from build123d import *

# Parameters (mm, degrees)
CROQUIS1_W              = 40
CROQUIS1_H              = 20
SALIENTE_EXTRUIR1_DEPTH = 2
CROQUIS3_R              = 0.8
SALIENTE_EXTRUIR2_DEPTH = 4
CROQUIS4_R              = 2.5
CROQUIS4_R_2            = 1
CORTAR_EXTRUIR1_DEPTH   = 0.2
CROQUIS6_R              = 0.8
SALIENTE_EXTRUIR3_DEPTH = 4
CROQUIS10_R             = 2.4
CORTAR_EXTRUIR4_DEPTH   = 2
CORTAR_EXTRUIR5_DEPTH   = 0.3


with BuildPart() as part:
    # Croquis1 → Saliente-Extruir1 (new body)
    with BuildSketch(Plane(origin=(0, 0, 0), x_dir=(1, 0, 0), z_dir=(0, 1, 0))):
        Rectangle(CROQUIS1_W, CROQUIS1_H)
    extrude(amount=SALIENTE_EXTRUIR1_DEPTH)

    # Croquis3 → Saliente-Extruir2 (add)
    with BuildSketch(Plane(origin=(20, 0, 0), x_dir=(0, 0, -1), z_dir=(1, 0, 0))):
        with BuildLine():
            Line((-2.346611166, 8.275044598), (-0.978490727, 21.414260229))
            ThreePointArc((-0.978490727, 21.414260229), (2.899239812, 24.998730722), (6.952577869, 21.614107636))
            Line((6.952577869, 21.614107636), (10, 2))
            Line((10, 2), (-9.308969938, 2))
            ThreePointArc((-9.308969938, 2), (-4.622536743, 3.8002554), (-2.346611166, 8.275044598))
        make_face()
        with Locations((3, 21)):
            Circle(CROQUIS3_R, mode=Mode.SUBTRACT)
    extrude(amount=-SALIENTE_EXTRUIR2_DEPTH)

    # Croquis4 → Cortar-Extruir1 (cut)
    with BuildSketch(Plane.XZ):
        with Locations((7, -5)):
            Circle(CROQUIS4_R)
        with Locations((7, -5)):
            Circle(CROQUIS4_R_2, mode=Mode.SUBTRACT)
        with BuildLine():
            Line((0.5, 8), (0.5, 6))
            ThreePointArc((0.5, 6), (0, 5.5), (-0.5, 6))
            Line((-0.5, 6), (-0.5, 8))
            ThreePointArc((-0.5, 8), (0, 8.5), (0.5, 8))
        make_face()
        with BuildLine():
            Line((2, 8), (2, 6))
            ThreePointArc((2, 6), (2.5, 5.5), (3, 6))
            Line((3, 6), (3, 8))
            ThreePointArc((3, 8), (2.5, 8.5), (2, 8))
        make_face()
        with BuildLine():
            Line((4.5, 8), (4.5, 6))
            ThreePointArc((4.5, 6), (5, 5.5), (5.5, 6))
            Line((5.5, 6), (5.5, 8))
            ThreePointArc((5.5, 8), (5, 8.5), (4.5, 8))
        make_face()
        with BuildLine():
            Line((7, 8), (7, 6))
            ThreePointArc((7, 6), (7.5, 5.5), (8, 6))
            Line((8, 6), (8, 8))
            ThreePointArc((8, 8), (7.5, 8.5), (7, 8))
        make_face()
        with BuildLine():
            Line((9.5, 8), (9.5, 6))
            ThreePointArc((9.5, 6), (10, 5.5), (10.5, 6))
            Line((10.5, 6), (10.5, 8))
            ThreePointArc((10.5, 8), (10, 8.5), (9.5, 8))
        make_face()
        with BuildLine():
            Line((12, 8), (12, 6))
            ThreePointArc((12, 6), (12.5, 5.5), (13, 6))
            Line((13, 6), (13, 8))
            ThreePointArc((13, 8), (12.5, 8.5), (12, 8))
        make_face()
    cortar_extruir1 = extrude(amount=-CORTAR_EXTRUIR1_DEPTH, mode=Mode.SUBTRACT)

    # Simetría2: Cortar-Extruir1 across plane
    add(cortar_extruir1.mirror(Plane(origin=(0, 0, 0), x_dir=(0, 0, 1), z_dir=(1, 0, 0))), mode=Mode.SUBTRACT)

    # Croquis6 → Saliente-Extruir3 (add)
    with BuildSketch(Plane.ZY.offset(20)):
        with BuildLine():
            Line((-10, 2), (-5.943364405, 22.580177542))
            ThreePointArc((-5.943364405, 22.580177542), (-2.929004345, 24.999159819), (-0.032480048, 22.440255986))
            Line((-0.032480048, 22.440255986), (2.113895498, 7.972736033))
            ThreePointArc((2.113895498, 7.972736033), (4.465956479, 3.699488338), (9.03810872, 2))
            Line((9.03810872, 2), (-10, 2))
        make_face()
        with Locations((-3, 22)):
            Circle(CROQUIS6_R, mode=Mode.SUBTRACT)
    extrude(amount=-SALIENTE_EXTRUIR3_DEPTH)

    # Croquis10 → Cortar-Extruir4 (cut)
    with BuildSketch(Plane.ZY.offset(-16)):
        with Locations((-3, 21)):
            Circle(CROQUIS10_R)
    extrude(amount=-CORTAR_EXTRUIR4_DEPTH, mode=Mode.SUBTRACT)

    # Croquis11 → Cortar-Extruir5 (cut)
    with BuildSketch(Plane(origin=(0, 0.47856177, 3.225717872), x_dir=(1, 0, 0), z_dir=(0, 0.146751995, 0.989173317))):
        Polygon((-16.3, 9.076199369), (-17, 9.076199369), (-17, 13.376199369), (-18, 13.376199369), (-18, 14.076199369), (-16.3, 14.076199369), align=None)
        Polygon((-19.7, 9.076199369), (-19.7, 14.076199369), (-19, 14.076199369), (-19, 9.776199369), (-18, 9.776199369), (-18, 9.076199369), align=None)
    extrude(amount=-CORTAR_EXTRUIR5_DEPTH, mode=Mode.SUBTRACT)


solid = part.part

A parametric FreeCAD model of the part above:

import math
import FreeCAD as App
import Part
import Sketcher
Q = App.Units.Quantity


def add_polygon(sketch, points):
    """Adds a closed chain of lines whose ends are joined by coincident constraints."""
    first, n = sketch.GeometryCount, len(points)
    for a, b in zip(points, points[1:] + points[:1]):
        sketch.addGeometry(Part.LineSegment(App.Vector(*a, 0), App.Vector(*b, 0)), False)
    for i in range(n):
        sketch.addConstraint(Sketcher.Constraint("Coincident", first + i, 2, first + (i + 1) % n, 1))

doc = App.newDocument("Part")
body = doc.addObject("PartDesign::Body", "Body")

sketch1 = body.newObject("Sketcher::SketchObject", "Sketch")
sketch1.AttachmentSupport = (doc.getObject("XZ_Plane"), [""])
sketch1.MapMode = "FlatFace"
add_polygon(sketch1, [(-20, -10), (-20, 10), (20, 10), (20, -10)])
sketch1.addConstraint(Sketcher.Constraint("Vertical", 0))
sketch1.addConstraint(Sketcher.Constraint("Horizontal", 1))
sketch1.addConstraint(Sketcher.Constraint("Vertical", 2))
sketch1.addConstraint(Sketcher.Constraint("Horizontal", 3))
sketch1.addConstraint(Sketcher.Constraint("Symmetric", 0, 2, 2, 2, -1, 1))
sketch1.addConstraint(Sketcher.Constraint("DistanceX", 1, 1, 1, 2, Q("40 mm")))
sketch1.addConstraint(Sketcher.Constraint("DistanceY", 0, 1, 0, 2, Q("20 mm")))
pad1 = body.newObject("PartDesign::Pad", "Pad")
pad1.Profile = sketch1
pad1.Length = 2
pad1.Reversed = True

sketch2 = body.newObject("Sketcher::SketchObject", "Sketch001")
sketch2.AttachmentSupport = (doc.getObject("YZ_Plane"), [""])
sketch2.MapMode = "FlatFace"
sketch2.AttachmentOffset = App.Placement(App.Vector(0, 0, 20), App.Rotation())
sketch2.addGeometry(Part.LineSegment(App.Vector(21.41426, 0.978491, 0), App.Vector(8.275045, 2.346611, 0)), False)
sketch2.addGeometry(Part.ArcOfCircle(Part.Circle(App.Vector(9, 9.30897, 0), App.Vector(0, 0, 1), 7), math.radians(-180), math.radians(-95.9445)), False)
sketch2.addGeometry(Part.LineSegment(App.Vector(2, 9.30897, 0), App.Vector(2, -10, 0)), False)
sketch2.addGeometry(Part.LineSegment(App.Vector(2, -10, 0), App.Vector(21.614108, -6.952578, 0)), False)
sketch2.addGeometry(Part.ArcOfCircle(Part.Circle(App.Vector(21, -3, 0), App.Vector(0, 0, 1), 4), math.radians(-81.168628), math.radians(84.0555)), False)
sketch2.addGeometry(Part.Circle(App.Vector(21, -3, 0), App.Vector(0, 0, 1), 0.8), False)
sketch2.addConstraint(Sketcher.Constraint("Tangent", 0, 2, 1, 2))
sketch2.addConstraint(Sketcher.Constraint("Tangent", 1, 1, 2, 1))
sketch2.addConstraint(Sketcher.Constraint("Coincident", 2, 2, 3, 1))
sketch2.addConstraint(Sketcher.Constraint("Tangent", 3, 2, 4, 1))
sketch2.addConstraint(Sketcher.Constraint("Tangent", 4, 2, 0, 1))
sketch2.addConstraint(Sketcher.Constraint("Vertical", 2))
sketch2.addConstraint(Sketcher.Constraint("Coincident", 5, 3, 4, 3))
sketch2.addConstraint(Sketcher.Constraint("Radius", 1, Q("7 mm")))
sketch2.addConstraint(Sketcher.Constraint("Radius", 4, Q("4 mm")))
sketch2.addConstraint(Sketcher.Constraint("Diameter", 5, Q("1.6 mm")))
sketch2.addConstraint(Sketcher.Constraint("DistanceX", -1, 1, 1, 3, Q("9 mm")))
sketch2.addConstraint(Sketcher.Constraint("DistanceX", -1, 1, 4, 3, Q("21 mm")))
sketch2.addConstraint(Sketcher.Constraint("DistanceY", 4, 3, -1, 1, Q("3 mm")))
sketch2.addConstraint(Sketcher.Constraint("DistanceY", 2, 2, -1, 1, Q("10 mm")))
sketch2.addConstraint(Sketcher.Constraint("DistanceY", 2, 2, 2, 1, Q("19.30897 mm")))
pad2 = body.newObject("PartDesign::Pad", "Pad001")
pad2.Profile = sketch2
pad2.Length = 4
pad2.Reversed = True

sketch3 = body.newObject("Sketcher::SketchObject", "Sketch002")
sketch3.AttachmentSupport = (doc.getObject("XZ_Plane"), [""])
sketch3.MapMode = "FlatFace"
sketch3.addGeometry(Part.Circle(App.Vector(7, -5, 0), App.Vector(0, 0, 1), 2.5), False)
sketch3.addGeometry(Part.Circle(App.Vector(7, -5, 0), App.Vector(0, 0, 1), 1), False)
sketch3.addGeometry(Part.LineSegment(App.Vector(0.5, 6, 0), App.Vector(0.5, 8, 0)), False)
sketch3.addGeometry(Part.ArcOfCircle(Part.Circle(App.Vector(0, 8, 0), App.Vector(0, 0, 1), 0.5), math.radians(0), math.radians(180)), False)
sketch3.addGeometry(Part.LineSegment(App.Vector(-0.5, 8, 0), App.Vector(-0.5, 6, 0)), False)
sketch3.addGeometry(Part.ArcOfCircle(Part.Circle(App.Vector(0, 6, 0), App.Vector(0, 0, 1), 0.5), math.radians(180), math.radians(360)), False)
sketch3.addGeometry(Part.LineSegment(App.Vector(2, 8, 0), App.Vector(2, 6, 0)), False)
sketch3.addGeometry(Part.ArcOfCircle(Part.Circle(App.Vector(2.5, 6, 0), App.Vector(0, 0, 1), 0.5), math.radians(180), math.radians(360)), False)
sketch3.addGeometry(Part.LineSegment(App.Vector(3, 6, 0), App.Vector(3, 8, 0)), False)
sketch3.addGeometry(Part.ArcOfCircle(Part.Circle(App.Vector(2.5, 8, 0), App.Vector(0, 0, 1), 0.5), math.radians(0), math.radians(180)), False)
sketch3.addGeometry(Part.LineSegment(App.Vector(4.5, 8, 0), App.Vector(4.5, 6, 0)), False)
sketch3.addGeometry(Part.ArcOfCircle(Part.Circle(App.Vector(5, 6, 0), App.Vector(0, 0, 1), 0.5), math.radians(180), math.radians(360)), False)
sketch3.addGeometry(Part.LineSegment(App.Vector(5.5, 6, 0), App.Vector(5.5, 8, 0)), False)
sketch3.addGeometry(Part.ArcOfCircle(Part.Circle(App.Vector(5, 8, 0), App.Vector(0, 0, 1), 0.5), math.radians(0), math.radians(180)), False)
sketch3.addGeometry(Part.LineSegment(App.Vector(7, 8, 0), App.Vector(7, 6, 0)), False)
sketch3.addGeometry(Part.ArcOfCircle(Part.Circle(App.Vector(7.5, 6, 0), App.Vector(0, 0, 1), 0.5), math.radians(180), math.radians(360)), False)
sketch3.addGeometry(Part.LineSegment(App.Vector(8, 6, 0), App.Vector(8, 8, 0)), False)
sketch3.addGeometry(Part.ArcOfCircle(Part.Circle(App.Vector(7.5, 8, 0), App.Vector(0, 0, 1), 0.5), math.radians(0), math.radians(180)), False)
sketch3.addGeometry(Part.LineSegment(App.Vector(9.5, 8, 0), App.Vector(9.5, 6, 0)), False)
sketch3.addGeometry(Part.ArcOfCircle(Part.Circle(App.Vector(10, 6, 0), App.Vector(0, 0, 1), 0.5), math.radians(180), math.radians(360)), False)
sketch3.addGeometry(Part.LineSegment(App.Vector(10.5, 6, 0), App.Vector(10.5, 8, 0)), False)
sketch3.addGeometry(Part.ArcOfCircle(Part.Circle(App.Vector(10, 8, 0), App.Vector(0, 0, 1), 0.5), math.radians(0), math.radians(180)), False)
sketch3.addGeometry(Part.LineSegment(App.Vector(12, 8, 0), App.Vector(12, 6, 0)), False)
sketch3.addGeometry(Part.ArcOfCircle(Part.Circle(App.Vector(12.5, 6, 0), App.Vector(0, 0, 1), 0.5), math.radians(180), math.radians(360)), False)
sketch3.addGeometry(Part.LineSegment(App.Vector(13, 6, 0), App.Vector(13, 8, 0)), False)
sketch3.addGeometry(Part.ArcOfCircle(Part.Circle(App.Vector(12.5, 8, 0), App.Vector(0, 0, 1), 0.5), math.radians(0), math.radians(180)), False)
sketch3.addConstraint(Sketcher.Constraint("Tangent", 2, 2, 3, 1))
sketch3.addConstraint(Sketcher.Constraint("Tangent", 3, 2, 4, 1))
sketch3.addConstraint(Sketcher.Constraint("Tangent", 4, 2, 5, 1))
sketch3.addConstraint(Sketcher.Constraint("Tangent", 5, 2, 2, 1))
sketch3.addConstraint(Sketcher.Constraint("Tangent", 6, 2, 7, 1))
sketch3.addConstraint(Sketcher.Constraint("Tangent", 7, 2, 8, 1))
sketch3.addConstraint(Sketcher.Constraint("Tangent", 8, 2, 9, 1))
sketch3.addConstraint(Sketcher.Constraint("Tangent", 9, 2, 6, 1))
sketch3.addConstraint(Sketcher.Constraint("Tangent", 10, 2, 11, 1))
sketch3.addConstraint(Sketcher.Constraint("Tangent", 11, 2, 12, 1))
sketch3.addConstraint(Sketcher.Constraint("Tangent", 12, 2, 13, 1))
sketch3.addConstraint(Sketcher.Constraint("Tangent", 13, 2, 10, 1))
sketch3.addConstraint(Sketcher.Constraint("Tangent", 14, 2, 15, 1))
sketch3.addConstraint(Sketcher.Constraint("Tangent", 15, 2, 16, 1))
sketch3.addConstraint(Sketcher.Constraint("Tangent", 16, 2, 17, 1))
sketch3.addConstraint(Sketcher.Constraint("Tangent", 17, 2, 14, 1))
sketch3.addConstraint(Sketcher.Constraint("Tangent", 18, 2, 19, 1))
sketch3.addConstraint(Sketcher.Constraint("Tangent", 19, 2, 20, 1))
sketch3.addConstraint(Sketcher.Constraint("Tangent", 20, 2, 21, 1))
sketch3.addConstraint(Sketcher.Constraint("Tangent", 21, 2, 18, 1))
sketch3.addConstraint(Sketcher.Constraint("Tangent", 22, 2, 23, 1))
sketch3.addConstraint(Sketcher.Constraint("Tangent", 23, 2, 24, 1))
sketch3.addConstraint(Sketcher.Constraint("Tangent", 24, 2, 25, 1))
sketch3.addConstraint(Sketcher.Constraint("Tangent", 25, 2, 22, 1))
sketch3.addConstraint(Sketcher.Constraint("Vertical", 2))
sketch3.addConstraint(Sketcher.Constraint("Vertical", 4))
sketch3.addConstraint(Sketcher.Constraint("Vertical", 6))
sketch3.addConstraint(Sketcher.Constraint("Vertical", 8))
sketch3.addConstraint(Sketcher.Constraint("Vertical", 10))
sketch3.addConstraint(Sketcher.Constraint("Vertical", 12))
sketch3.addConstraint(Sketcher.Constraint("Vertical", 14))
sketch3.addConstraint(Sketcher.Constraint("Vertical", 16))
sketch3.addConstraint(Sketcher.Constraint("Vertical", 18))
sketch3.addConstraint(Sketcher.Constraint("Vertical", 20))
sketch3.addConstraint(Sketcher.Constraint("Vertical", 22))
sketch3.addConstraint(Sketcher.Constraint("Vertical", 24))
sketch3.addConstraint(Sketcher.Constraint("Coincident", 1, 3, 0, 3))
sketch3.addConstraint(Sketcher.Constraint("Equal", 5, 7))
sketch3.addConstraint(Sketcher.Constraint("Equal", 9, 11))
sketch3.addConstraint(Sketcher.Constraint("Equal", 13, 15))
sketch3.addConstraint(Sketcher.Constraint("Equal", 17, 19))
sketch3.addConstraint(Sketcher.Constraint("Equal", 21, 23))
sketch3.addConstraint(Sketcher.Constraint("PointOnObject", 3, 3, -2))
sketch3.addConstraint(Sketcher.Constraint("Horizontal", 5, 3, 7, 3))
sketch3.addConstraint(Sketcher.Constraint("Horizontal", 3, 3, 9, 3))
sketch3.addConstraint(Sketcher.Constraint("Horizontal", 7, 3, 11, 3))
sketch3.addConstraint(Sketcher.Constraint("Horizontal", 9, 3, 13, 3))
sketch3.addConstraint(Sketcher.Constraint("Horizontal", 11, 3, 15, 3))
sketch3.addConstraint(Sketcher.Constraint("Horizontal", 13, 3, 17, 3))
sketch3.addConstraint(Sketcher.Constraint("Horizontal", 15, 3, 19, 3))
sketch3.addConstraint(Sketcher.Constraint("Horizontal", 17, 3, 21, 3))
sketch3.addConstraint(Sketcher.Constraint("Horizontal", 19, 3, 23, 3))
sketch3.addConstraint(Sketcher.Constraint("Horizontal", 21, 3, 25, 3))
sketch3.addConstraint(Sketcher.Constraint("Vertical", 1, 3, 14, 2))
sketch3.addConstraint(Sketcher.Constraint("Diameter", 0, Q("5 mm")))
sketch3.addConstraint(Sketcher.Constraint("Diameter", 1, Q("2 mm")))
sketch3.addConstraint(Sketcher.Constraint("Radius", 3, Q("0.5 mm")))
sketch3.addConstraint(Sketcher.Constraint("DistanceY", 2, 1, 2, 2, Q("2 mm")))
sketch3.addConstraint(Sketcher.Constraint("DistanceX", -1, 1, 0, 3, Q("7 mm")))
sketch3.addConstraint(Sketcher.Constraint("DistanceY", 0, 3, -1, 1, Q("5 mm")))
sketch3.addConstraint(Sketcher.Constraint("DistanceY", -1, 1, 3, 3, Q("8 mm")))
sketch3.addConstraint(Sketcher.Constraint("DistanceX", -1, 1, 11, 3, Q("5 mm")))
sketch3.addConstraint(Sketcher.Constraint("DistanceX", -1, 1, 19, 3, Q("10 mm")))
sketch3.addConstraint(Sketcher.Constraint("DistanceX", -1, 1, 6, 2, Q("2 mm")))
sketch3.addConstraint(Sketcher.Constraint("DistanceX", -1, 1, 22, 2, Q("12 mm")))
pocket1 = body.newObject("PartDesign::Pocket", "Pocket")
pocket1.Profile = sketch3
pocket1.Length = 0.2
doc.recompute()

mirrored = body.newObject("PartDesign::Mirrored", "Mirrored")
mirrored.Originals = [pocket1]
mirrored.MirrorPlane = (doc.getObject("YZ_Plane"), [""])
body.Tip = mirrored

sketch4 = body.newObject("Sketcher::SketchObject", "Sketch003")
sketch4.AttachmentSupport = (doc.getObject("YZ_Plane"), [""])
sketch4.MapMode = "FlatFace"
sketch4.AttachmentOffset = App.Placement(App.Vector(0, 0, -20), App.Rotation())
sketch4.addGeometry(Part.LineSegment(App.Vector(22.580178, -5.943364, 0), App.Vector(2, -10, 0)), False)
sketch4.addGeometry(Part.LineSegment(App.Vector(2, -10, 0), App.Vector(2, 9.038109, 0)), False)
sketch4.addGeometry(Part.ArcOfCircle(Part.Circle(App.Vector(9, 9.038109, 0), App.Vector(0, 0, 1), 7), math.radians(-180), math.radians(-98.438747)), False)
sketch4.addGeometry(Part.LineSegment(App.Vector(7.972736, 2.113895, 0), App.Vector(22.440256, -0.03248, 0)), False)
sketch4.addGeometry(Part.ArcOfCircle(Part.Circle(App.Vector(22, -3, 0), App.Vector(0, 0, 1), 3), math.radians(-78.849166), math.radians(81.561253)), False)
sketch4.addGeometry(Part.Circle(App.Vector(22, -3, 0), App.Vector(0, 0, 1), 0.8), False)
sketch4.addConstraint(Sketcher.Constraint("Coincident", 0, 2, 1, 1))
sketch4.addConstraint(Sketcher.Constraint("Tangent", 1, 2, 2, 1))
sketch4.addConstraint(Sketcher.Constraint("Tangent", 2, 2, 3, 1))
sketch4.addConstraint(Sketcher.Constraint("Tangent", 3, 2, 4, 2))
sketch4.addConstraint(Sketcher.Constraint("Tangent", 4, 1, 0, 1))
sketch4.addConstraint(Sketcher.Constraint("Vertical", 1))
sketch4.addConstraint(Sketcher.Constraint("Coincident", 5, 3, 4, 3))
sketch4.addConstraint(Sketcher.Constraint("Radius", 2, Q("7 mm")))
sketch4.addConstraint(Sketcher.Constraint("Radius", 4, Q("3 mm")))
sketch4.addConstraint(Sketcher.Constraint("Diameter", 5, Q("1.6 mm")))
sketch4.addConstraint(Sketcher.Constraint("DistanceX", -1, 1, 2, 3, Q("9 mm")))
sketch4.addConstraint(Sketcher.Constraint("DistanceX", -1, 1, 4, 3, Q("22 mm")))
sketch4.addConstraint(Sketcher.Constraint("DistanceY", 4, 3, -1, 1, Q("3 mm")))
sketch4.addConstraint(Sketcher.Constraint("DistanceY", 0, 2, -1, 1, Q("10 mm")))
sketch4.addConstraint(Sketcher.Constraint("DistanceY", 1, 1, 1, 2, Q("19.038109 mm")))
pad3 = body.newObject("PartDesign::Pad", "Pad002")
pad3.Profile = sketch4
pad3.Length = 4

sketch5 = body.newObject("Sketcher::SketchObject", "Sketch004")
sketch5.AttachmentSupport = (doc.getObject("YZ_Plane"), [""])
sketch5.MapMode = "FlatFace"
sketch5.AttachmentOffset = App.Placement(App.Vector(0, 0, 16), App.Rotation())
sketch5.addGeometry(Part.Circle(App.Vector(21, -3, 0), App.Vector(0, 0, 1), 2.4), False)
sketch5.addConstraint(Sketcher.Constraint("Diameter", 0, Q("4.8 mm")))
sketch5.addConstraint(Sketcher.Constraint("DistanceX", -1, 1, 0, 3, Q("21 mm")))
sketch5.addConstraint(Sketcher.Constraint("DistanceY", 0, 3, -1, 1, Q("3 mm")))
pocket2 = body.newObject("PartDesign::Pocket", "Pocket001")
pocket2.Profile = sketch5
pocket2.Length = 2
pocket2.Reversed = True

sketch6 = body.newObject("Sketcher::SketchObject", "Sketch005")
sketch6.Placement = App.Placement(App.Vector(0, 0.478562, 3.225718), App.Rotation(App.Vector(1, 0, 0), App.Vector(0, 0.989173317, -0.146751995), App.Vector(0, 0.146751995, 0.989173317), "ZXY"))
add_polygon(sketch6, [(-17, 9.076199), (-16.3, 9.076199), (-16.3, 14.076199), (-18, 14.076199), (-18, 13.376199), (-17, 13.376199)])
add_polygon(sketch6, [(-19.7, 14.076199), (-19.7, 9.076199), (-18, 9.076199), (-18, 9.776199), (-19, 9.776199), (-19, 14.076199)])
sketch6.addConstraint(Sketcher.Constraint("Horizontal", 0))
sketch6.addConstraint(Sketcher.Constraint("Vertical", 1))
sketch6.addConstraint(Sketcher.Constraint("Horizontal", 2))
sketch6.addConstraint(Sketcher.Constraint("Vertical", 3))
sketch6.addConstraint(Sketcher.Constraint("Horizontal", 4))
sketch6.addConstraint(Sketcher.Constraint("Vertical", 5))
sketch6.addConstraint(Sketcher.Constraint("Vertical", 6))
sketch6.addConstraint(Sketcher.Constraint("Horizontal", 7))
sketch6.addConstraint(Sketcher.Constraint("Vertical", 8))
sketch6.addConstraint(Sketcher.Constraint("Horizontal", 9))
sketch6.addConstraint(Sketcher.Constraint("Vertical", 10))
sketch6.addConstraint(Sketcher.Constraint("Horizontal", 11))
sketch6.addConstraint(Sketcher.Constraint("Horizontal", 5, 2, 6, 2))
sketch6.addConstraint(Sketcher.Constraint("Horizontal", 2, 2, 10, 2))
sketch6.addConstraint(Sketcher.Constraint("Vertical", 3, 2, 7, 2))
sketch6.addConstraint(Sketcher.Constraint("Equal", 2, 7))
sketch6.addConstraint(Sketcher.Constraint("Equal", 4, 9))
sketch6.addConstraint(Sketcher.Constraint("Equal", 11, 3))
sketch6.addConstraint(Sketcher.Constraint("Equal", 3, 8))
sketch6.addConstraint(Sketcher.Constraint("DistanceX", 4, 1, 4, 2, Q("1 mm")))
sketch6.addConstraint(Sketcher.Constraint("DistanceY", 1, 1, 1, 2, Q("5 mm")))
sketch6.addConstraint(Sketcher.Constraint("DistanceX", 0, 1, 0, 2, Q("0.7 mm")))
sketch6.addConstraint(Sketcher.Constraint("DistanceX", 2, 2, -1, 1, Q("18 mm")))
sketch6.addConstraint(Sketcher.Constraint("DistanceY", -1, 1, 0, 2, Q("9.076199 mm")))
pocket3 = body.newObject("PartDesign::Pocket", "Pocket002")
pocket3.Profile = sketch6
pocket3.Length = 0.3

doc.recompute()
